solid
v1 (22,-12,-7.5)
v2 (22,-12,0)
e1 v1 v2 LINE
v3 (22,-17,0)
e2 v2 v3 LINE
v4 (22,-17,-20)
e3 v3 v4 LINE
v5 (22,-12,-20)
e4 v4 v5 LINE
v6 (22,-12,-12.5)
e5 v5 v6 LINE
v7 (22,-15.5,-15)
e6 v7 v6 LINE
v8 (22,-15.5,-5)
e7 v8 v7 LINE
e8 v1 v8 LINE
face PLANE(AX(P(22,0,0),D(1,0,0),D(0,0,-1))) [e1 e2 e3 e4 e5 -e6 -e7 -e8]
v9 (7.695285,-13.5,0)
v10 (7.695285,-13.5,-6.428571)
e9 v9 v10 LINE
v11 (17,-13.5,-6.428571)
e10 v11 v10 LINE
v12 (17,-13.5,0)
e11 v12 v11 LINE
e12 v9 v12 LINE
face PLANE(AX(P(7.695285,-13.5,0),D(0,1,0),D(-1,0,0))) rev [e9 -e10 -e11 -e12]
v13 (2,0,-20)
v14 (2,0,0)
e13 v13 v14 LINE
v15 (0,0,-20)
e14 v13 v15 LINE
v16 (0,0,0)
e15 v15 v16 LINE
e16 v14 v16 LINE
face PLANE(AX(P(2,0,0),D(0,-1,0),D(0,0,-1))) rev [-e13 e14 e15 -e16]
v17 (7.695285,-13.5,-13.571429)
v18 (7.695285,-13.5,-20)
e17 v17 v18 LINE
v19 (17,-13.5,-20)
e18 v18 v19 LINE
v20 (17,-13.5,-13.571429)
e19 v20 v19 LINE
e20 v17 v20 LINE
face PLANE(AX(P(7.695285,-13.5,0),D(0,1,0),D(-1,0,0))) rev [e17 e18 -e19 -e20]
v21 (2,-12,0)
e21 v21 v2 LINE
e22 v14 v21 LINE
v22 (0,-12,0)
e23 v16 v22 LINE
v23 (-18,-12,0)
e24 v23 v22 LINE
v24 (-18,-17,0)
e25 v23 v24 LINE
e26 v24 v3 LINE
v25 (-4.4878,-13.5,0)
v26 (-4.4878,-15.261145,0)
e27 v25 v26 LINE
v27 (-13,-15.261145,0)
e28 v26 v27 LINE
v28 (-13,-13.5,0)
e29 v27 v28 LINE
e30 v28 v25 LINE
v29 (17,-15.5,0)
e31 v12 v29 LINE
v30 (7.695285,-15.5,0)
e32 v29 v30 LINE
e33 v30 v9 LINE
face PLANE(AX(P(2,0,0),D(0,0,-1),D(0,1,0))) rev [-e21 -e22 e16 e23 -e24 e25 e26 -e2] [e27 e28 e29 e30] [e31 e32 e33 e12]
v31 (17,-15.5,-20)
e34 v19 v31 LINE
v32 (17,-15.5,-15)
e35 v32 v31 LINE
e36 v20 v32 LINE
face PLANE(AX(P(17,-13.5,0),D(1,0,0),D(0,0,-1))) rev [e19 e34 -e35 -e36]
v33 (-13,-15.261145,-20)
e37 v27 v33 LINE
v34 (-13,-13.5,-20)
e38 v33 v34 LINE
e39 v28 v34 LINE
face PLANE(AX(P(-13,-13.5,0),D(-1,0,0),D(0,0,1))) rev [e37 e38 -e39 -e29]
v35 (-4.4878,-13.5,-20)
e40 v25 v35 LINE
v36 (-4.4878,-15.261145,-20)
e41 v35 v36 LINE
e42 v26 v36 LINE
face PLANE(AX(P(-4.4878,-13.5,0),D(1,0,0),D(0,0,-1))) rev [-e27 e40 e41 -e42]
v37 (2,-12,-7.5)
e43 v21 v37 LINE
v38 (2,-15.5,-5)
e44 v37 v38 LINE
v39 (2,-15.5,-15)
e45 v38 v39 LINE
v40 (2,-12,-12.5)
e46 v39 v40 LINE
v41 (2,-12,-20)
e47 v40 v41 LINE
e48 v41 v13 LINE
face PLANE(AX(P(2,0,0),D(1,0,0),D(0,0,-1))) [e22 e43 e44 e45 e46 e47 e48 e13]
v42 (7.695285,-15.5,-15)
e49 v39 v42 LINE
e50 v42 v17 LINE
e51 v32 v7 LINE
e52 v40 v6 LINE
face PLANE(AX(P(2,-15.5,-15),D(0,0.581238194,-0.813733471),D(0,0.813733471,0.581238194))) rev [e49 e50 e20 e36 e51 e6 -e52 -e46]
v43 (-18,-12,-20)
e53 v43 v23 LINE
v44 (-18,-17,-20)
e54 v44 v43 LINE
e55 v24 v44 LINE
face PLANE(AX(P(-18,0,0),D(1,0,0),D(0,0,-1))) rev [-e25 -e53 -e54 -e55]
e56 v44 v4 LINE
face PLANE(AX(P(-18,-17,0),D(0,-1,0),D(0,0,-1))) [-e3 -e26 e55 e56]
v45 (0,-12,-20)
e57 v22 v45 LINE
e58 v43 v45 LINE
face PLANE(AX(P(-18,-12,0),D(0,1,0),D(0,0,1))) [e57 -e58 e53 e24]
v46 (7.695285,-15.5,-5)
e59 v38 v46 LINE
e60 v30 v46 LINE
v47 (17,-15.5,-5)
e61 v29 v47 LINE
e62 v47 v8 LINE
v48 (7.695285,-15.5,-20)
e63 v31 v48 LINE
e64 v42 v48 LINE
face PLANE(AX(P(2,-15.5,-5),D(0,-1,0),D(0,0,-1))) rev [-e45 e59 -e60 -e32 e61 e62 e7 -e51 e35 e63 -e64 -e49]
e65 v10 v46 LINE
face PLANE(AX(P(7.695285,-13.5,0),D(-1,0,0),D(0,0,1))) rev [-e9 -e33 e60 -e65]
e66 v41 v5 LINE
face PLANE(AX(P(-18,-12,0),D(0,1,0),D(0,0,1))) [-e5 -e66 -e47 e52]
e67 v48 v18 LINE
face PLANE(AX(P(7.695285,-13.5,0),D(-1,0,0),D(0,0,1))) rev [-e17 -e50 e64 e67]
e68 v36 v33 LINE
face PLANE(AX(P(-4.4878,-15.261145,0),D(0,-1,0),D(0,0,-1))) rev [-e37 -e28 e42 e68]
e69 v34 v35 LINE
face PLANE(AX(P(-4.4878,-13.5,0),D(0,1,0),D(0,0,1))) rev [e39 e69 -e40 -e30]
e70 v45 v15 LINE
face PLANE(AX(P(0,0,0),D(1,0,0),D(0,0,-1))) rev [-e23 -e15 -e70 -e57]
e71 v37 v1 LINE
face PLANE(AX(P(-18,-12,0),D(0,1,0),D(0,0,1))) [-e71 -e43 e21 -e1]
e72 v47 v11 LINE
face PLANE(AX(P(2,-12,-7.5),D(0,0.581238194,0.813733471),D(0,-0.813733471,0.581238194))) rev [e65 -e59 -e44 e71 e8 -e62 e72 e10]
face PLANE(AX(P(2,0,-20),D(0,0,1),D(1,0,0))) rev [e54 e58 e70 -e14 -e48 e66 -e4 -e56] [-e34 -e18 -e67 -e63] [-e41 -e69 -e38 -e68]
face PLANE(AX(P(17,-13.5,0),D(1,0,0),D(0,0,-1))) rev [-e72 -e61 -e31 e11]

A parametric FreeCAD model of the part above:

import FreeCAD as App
import Part
import Sketcher
Q = App.Units.Quantity


def add_polygon(sketch, points):
    """Adds a closed chain of lines whose ends are joined by coincident constraints."""
    first, n = sketch.GeometryCount, len(points)
    for a, b in zip(points, points[1:] + points[:1]):
        sketch.addGeometry(Part.LineSegment(App.Vector(*a, 0), App.Vector(*b, 0)), False)
    for i in range(n):
        sketch.addConstraint(Sketcher.Constraint("Coincident", first + i, 2, first + (i + 1) % n, 1))

doc = App.newDocument("Part")
body = doc.addObject("PartDesign::Body", "Body")

sketch1 = doc.addObject("Sketcher::SketchObject", "Sketch")
body.addObject(sketch1)
sketch1.AttachmentSupport = (doc.YZ_Plane, [""])
sketch1.MapMode = "FlatFace"
add_polygon(sketch1, [(0, 0), (-12, 0), (-12, -20), (0, -20)])
sketch1.addConstraint([
    Sketcher.Constraint("Horizontal", 0),
    Sketcher.Constraint("Vertical", 1),
    Sketcher.Constraint("Horizontal", 2),
    Sketcher.Constraint("Vertical", 3),
    Sketcher.Constraint("Coincident", 3, 2, -1, 1),
    Sketcher.Constraint("DistanceX", 0, 2, 0, 1, Q("12 mm")),
    Sketcher.Constraint("DistanceY", 1, 2, 1, 1, Q("20 mm")),
])
pad1 = doc.addObject("PartDesign::Pad", "Pad")
body.addObject(pad1)
pad1.Profile = sketch1
pad1.Length = 2

sketch2 = doc.addObject("Sketcher::SketchObject", "Sketch001")
body.addObject(sketch2)
sketch2.AttachmentSupport = (doc.YZ_Plane, [""])
sketch2.MapMode = "FlatFace"
sketch2.AttachmentOffset = App.Placement(App.Vector(0, 0, 2), App.Rotation())
add_polygon(sketch2, [(-12, 0), (-17, 0), (-17, -20), (-12, -20)])
sketch2.addConstraint([
    Sketcher.Constraint("Horizontal", 0),
    Sketcher.Constraint("Vertical", 1),
    Sketcher.Constraint("Horizontal", 2),
    Sketcher.Constraint("Vertical", 3),
    Sketcher.Constraint("PointOnObject", 0, 2, -1),
    Sketcher.Constraint("DistanceX", 0, 2, 0, 1, Q("5 mm")),
    Sketcher.Constraint("DistanceY", 1, 2, 1, 1, Q("20 mm")),
    Sketcher.Constraint("DistanceX", 0, 2, -1, 1, Q("17 mm")),
])
pad2 = doc.addObject("PartDesign::Pad", "Pad001")
body.addObject(pad2)
pad2.Profile = sketch2
pad2.Type = "TwoLengths"
pad2.Length = 20
pad2.Length2 = 20

sketch3 = doc.addObject("Sketcher::SketchObject", "Sketch002")
body.addObject(sketch3)
sketch3.AttachmentSupport = (doc.YZ_Plane, [""])
sketch3.MapMode = "FlatFace"
sketch3.AttachmentOffset = App.Placement(App.Vector(0, 0, 22), App.Rotation())
add_polygon(sketch3, [(-12, -12.5), (-12, -7.5), (-15.5, -5), (-15.5, -15)])
sketch3.addConstraint([
    Sketcher.Constraint("Vertical", 0),
    Sketcher.Constraint("Vertical", 2),
    Sketcher.Constraint("Equal", 1, 3),
    Sketcher.Constraint("DistanceY", 0, 1, 0, 2, Q("5 mm")),
    Sketcher.Constraint("DistanceY", 2, 2, 2, 1, Q("10 mm")),
    Sketcher.Constraint("DistanceX", 0, 2, -1, 1, Q("12 mm")),
    Sketcher.Constraint("DistanceY", 1, 2, -1, 1, Q("5 mm")),
    Sketcher.Constraint("DistanceX", 1, 2, -1, 1, Q("15.5 mm")),
])
pocket1 = doc.addObject("PartDesign::Pocket", "Pocket")
body.addObject(pocket1)
pocket1.Profile = sketch3
pocket1.Length = 20

sketch4 = doc.addObject("Sketcher::SketchObject", "Sketch003")
body.addObject(sketch4)
sketch4.AttachmentSupport = (doc.XY_Plane, [""])
sketch4.MapMode = "FlatFace"
sketch4.AttachmentOffset = App.Placement(App.Vector(0, 0, -20), App.Rotation())
add_polygon(sketch4, [(-4.4878, -13.5), (-4.4878, -15.261145), (-13, -15.261145), (-13, -13.5)])
add_polygon(sketch4, [(17, -13.5), (17, -15.5), (7.695285, -15.5), (7.695285, -13.5)])
sketch4.addConstraint([
    Sketcher.Constraint("Vertical", 0),
    Sketcher.Constraint("Horizontal", 1),
    Sketcher.Constraint("Vertical", 2),
    Sketcher.Constraint("Horizontal", 3),
    Sketcher.Constraint("Vertical", 4),
    Sketcher.Constraint("Horizontal", 5),
    Sketcher.Constraint("Vertical", 6),
    Sketcher.Constraint("Horizontal", 7),
    Sketcher.Constraint("Horizontal", 3, 2, 6, 2),
    Sketcher.Constraint("DistanceY", 4, 2, 4, 1, Q("2 mm")),
    Sketcher.Constraint("DistanceX", 1, 2, -1, 1, Q("13 mm")),
    Sketcher.Constraint("DistanceX", -1, 1, 4, 2, Q("17 mm")),
    Sketcher.Constraint("DistanceY", 2, 2, -1, 1, Q("13.5 mm")),
    Sketcher.Constraint("DistanceX", 1, 2, 1, 1, Q("8.5122 mm")),
    Sketcher.Constraint("DistanceX", 5, 2, 5, 1, Q("9.304715 mm")),
    Sketcher.Constraint("DistanceY", 0, 2, 0, 1, Q("1.761145 mm")),
])
pocket2 = doc.addObject("PartDesign::Pocket", "Pocket001")
body.addObject(pocket2)
pocket2.Profile = sketch4
pocket2.Type = "ThroughAll"
pocket2.Reversed = True

doc.recompute()
